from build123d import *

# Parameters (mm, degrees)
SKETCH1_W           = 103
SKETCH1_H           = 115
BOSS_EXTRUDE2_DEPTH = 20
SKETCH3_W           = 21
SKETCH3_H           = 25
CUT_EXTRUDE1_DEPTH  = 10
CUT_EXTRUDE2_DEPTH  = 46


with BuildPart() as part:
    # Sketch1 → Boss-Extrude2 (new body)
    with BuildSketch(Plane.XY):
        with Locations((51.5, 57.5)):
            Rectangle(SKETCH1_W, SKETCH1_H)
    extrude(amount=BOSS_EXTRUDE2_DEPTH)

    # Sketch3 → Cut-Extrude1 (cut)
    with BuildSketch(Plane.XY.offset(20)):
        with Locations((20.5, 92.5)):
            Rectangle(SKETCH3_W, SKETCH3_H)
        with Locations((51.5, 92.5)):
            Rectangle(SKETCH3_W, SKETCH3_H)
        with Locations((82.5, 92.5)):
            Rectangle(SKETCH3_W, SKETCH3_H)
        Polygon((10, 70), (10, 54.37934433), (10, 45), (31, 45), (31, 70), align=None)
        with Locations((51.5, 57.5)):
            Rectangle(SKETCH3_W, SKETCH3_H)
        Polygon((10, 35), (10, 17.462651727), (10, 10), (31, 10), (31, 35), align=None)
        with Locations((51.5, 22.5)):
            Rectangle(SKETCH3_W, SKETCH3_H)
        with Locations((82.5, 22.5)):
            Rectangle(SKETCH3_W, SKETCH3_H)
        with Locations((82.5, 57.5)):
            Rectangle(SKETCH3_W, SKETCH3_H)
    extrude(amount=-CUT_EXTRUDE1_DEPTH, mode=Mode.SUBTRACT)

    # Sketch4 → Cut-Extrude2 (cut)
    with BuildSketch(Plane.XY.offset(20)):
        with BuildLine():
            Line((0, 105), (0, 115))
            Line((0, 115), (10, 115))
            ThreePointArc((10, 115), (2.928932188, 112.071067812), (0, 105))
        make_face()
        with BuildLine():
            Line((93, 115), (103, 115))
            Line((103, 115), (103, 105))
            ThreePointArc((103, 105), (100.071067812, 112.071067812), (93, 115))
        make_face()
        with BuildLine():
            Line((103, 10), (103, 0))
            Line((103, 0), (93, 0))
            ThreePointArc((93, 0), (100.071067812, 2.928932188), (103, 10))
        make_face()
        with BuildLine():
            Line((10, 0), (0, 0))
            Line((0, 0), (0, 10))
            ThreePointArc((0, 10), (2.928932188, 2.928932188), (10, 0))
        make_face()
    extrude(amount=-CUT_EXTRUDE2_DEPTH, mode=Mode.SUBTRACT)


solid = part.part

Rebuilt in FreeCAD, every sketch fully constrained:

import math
import FreeCAD as App
import Part
import Sketcher

V = App.Vector
Q = App.Units.Quantity


def add_polygon(sketch, points):
    """Adds a closed chain of lines whose ends are joined by coincident constraints."""
    first, n = sketch.GeometryCount, len(points)
    for a, b in zip(points, points[1:] + points[:1]):
        sketch.addGeometry(Part.LineSegment(App.Vector(*a, 0), App.Vector(*b, 0)), False)
    for i in range(n):
        sketch.addConstraint(Sketcher.Constraint("Coincident", first + i, 2, first + (i + 1) % n, 1))

doc = App.newDocument("Part")
body = doc.addObject("PartDesign::Body", "Body")

# Sketch on XY plane
sketch1 = body.newObject("Sketcher::SketchObject", "Sketch")
sketch1.AttachmentSupport = (doc.getObject("XY_Plane"), [""])
sketch1.MapMode = "FlatFace"
add_polygon(sketch1, [(0, 115), (0, 0), (103, 0), (103, 115)])  # lines 0-3
sketch1.addConstraint([
    Sketcher.Constraint("Vertical", 0),
    Sketcher.Constraint("Horizontal", 1),
    Sketcher.Constraint("Vertical", 2),
    Sketcher.Constraint("Horizontal", 3),
    Sketcher.Constraint("Coincident", 0, 2, -1, 1),
    Sketcher.Constraint("DistanceX", 1, 1, 1, 2, Q("103 mm")),
    Sketcher.Constraint("DistanceY", 0, 2, 0, 1, Q("115 mm")),
])
pad1 = body.newObject("PartDesign::Pad", "Pad")
pad1.Profile = sketch1
pad1.Length = 20

# Sketch on XY plane
sketch2 = body.newObject("Sketcher::SketchObject", "Sketch001")
sketch2.AttachmentSupport = (doc.getObject("XY_Plane"), [""])
sketch2.MapMode = "FlatFace"
sketch2.AttachmentOffset = App.Placement(V(0, 0, 20), App.Rotation())
add_polygon(sketch2, [(10, 105), (10, 80), (31, 80), (31, 105)])  # lines 0-3
add_polygon(sketch2, [(41, 105), (41, 80), (62, 80), (62, 105)])  # lines 4-7
add_polygon(sketch2, [(72, 105), (72, 80), (93, 80), (93, 105)])  # lines 8-11
add_polygon(sketch2, [(10, 70), (10, 45), (31, 45), (31, 70)])  # lines 12-15
add_polygon(sketch2, [(41, 70), (41, 45), (62, 45), (62, 70)])  # lines 16-19
add_polygon(sketch2, [(10, 35), (10, 10), (31, 10), (31, 35)])  # lines 20-23
add_polygon(sketch2, [(41, 35), (41, 10), (62, 10), (62, 35)])  # lines 24-27
add_polygon(sketch2, [(72, 35), (72, 10), (93, 10), (93, 35)])  # lines 28-31
add_polygon(sketch2, [(72, 70), (72, 45), (93, 45), (93, 70)])  # lines 32-35
sketch2.addConstraint([
    Sketcher.Constraint("Vertical", 0),
    Sketcher.Constraint("Horizontal", 1),
    Sketcher.Constraint("Vertical", 2),
    Sketcher.Constraint("Horizontal", 3),
    Sketcher.Constraint("Vertical", 4),
    Sketcher.Constraint("Horizontal", 5),
    Sketcher.Constraint("Vertical", 6),
    Sketcher.Constraint("Horizontal", 7),
    Sketcher.Constraint("Vertical", 8),
    Sketcher.Constraint("Horizontal", 9),
    Sketcher.Constraint("Vertical", 10),
    Sketcher.Constraint("Horizontal", 11),
    Sketcher.Constraint("Vertical", 12),
    Sketcher.Constraint("Horizontal", 13),
    Sketcher.Constraint("Vertical", 14),
    Sketcher.Constraint("Horizontal", 15),
    Sketcher.Constraint("Vertical", 16),
    Sketcher.Constraint("Horizontal", 17),
    Sketcher.Constraint("Vertical", 18),
    Sketcher.Constraint("Horizontal", 19),
    Sketcher.Constraint("Vertical", 20),
    Sketcher.Constraint("Horizontal", 21),
    Sketcher.Constraint("Vertical", 22),
    Sketcher.Constraint("Horizontal", 23),
    Sketcher.Constraint("Vertical", 24),
    Sketcher.Constraint("Horizontal", 25),
    Sketcher.Constraint("Vertical", 26),
    Sketcher.Constraint("Horizontal", 27),
    Sketcher.Constraint("Vertical", 28),
    Sketcher.Constraint("Horizontal", 29),
    Sketcher.Constraint("Vertical", 30),
    Sketcher.Constraint("Horizontal", 31),
    Sketcher.Constraint("Vertical", 32),
    Sketcher.Constraint("Horizontal", 33),
    Sketcher.Constraint("Vertical", 34),
    Sketcher.Constraint("Horizontal", 35),
    Sketcher.Constraint("Horizontal", 1, 2, 4, 2),
    Sketcher.Constraint("Horizontal", 3, 2, 6, 2),
    Sketcher.Constraint("Horizontal", 5, 2, 8, 2),
    Sketcher.Constraint("Horizontal", 7, 2, 10, 2),
    Sketcher.Constraint("Horizontal", 13, 2, 16, 2),
    Sketcher.Constraint("Horizontal", 15, 2, 18, 2),
    Sketcher.Constraint("Horizontal", 21, 2, 24, 2),
    Sketcher.Constraint("Horizontal", 23, 2, 26, 2),
    Sketcher.Constraint("Horizontal", 25, 2, 28, 2),
    Sketcher.Constraint("Horizontal", 27, 2, 30, 2),
    Sketcher.Constraint("Horizontal", 17, 2, 32, 2),
    Sketcher.Constraint("Horizontal", 19, 2, 34, 2),
    Sketcher.Constraint("Vertical", 3, 2, 12, 2),
    Sketcher.Constraint("Vertical", 2, 2, 13, 2),
    Sketcher.Constraint("Vertical", 7, 2, 16, 2),
    Sketcher.Constraint("Vertical", 6, 2, 17, 2),
    Sketcher.Constraint("Vertical", 15, 2, 20, 2),
    Sketcher.Constraint("Vertical", 14, 2, 21, 2),
    Sketcher.Constraint("Vertical", 19, 2, 24, 2),
    Sketcher.Constraint("Vertical", 18, 2, 25, 2),
    Sketcher.Constraint("Vertical", 11, 2, 28, 2),
    Sketcher.Constraint("Vertical", 10, 2, 29, 2),
    Sketcher.Constraint("Vertical", 31, 2, 32, 2),
    Sketcher.Constraint("Vertical", 30, 2, 33, 2),
    Sketcher.Constraint("Equal", 3, 5),
    Sketcher.Constraint("Equal", 7, 9),
    Sketcher.Constraint("Equal", 10, 12),
    Sketcher.Constraint("Equal", 18, 20),
    Sketcher.Constraint("DistanceX", 1, 1, 1, 2, Q("21 mm")),
    Sketcher.Constraint("DistanceY", 0, 2, 0, 1, Q("25 mm")),
    Sketcher.Constraint("DistanceX", -1, 1, 0, 2, Q("10 mm")),
    Sketcher.Constraint("DistanceY", -1, 1, 0, 2, Q("80 mm")),
    Sketcher.Constraint("DistanceX", -1, 1, 4, 2, Q("41 mm")),
    Sketcher.Constraint("DistanceX", -1, 1, 8, 2, Q("72 mm")),
    Sketcher.Constraint("DistanceY", -1, 1, 12, 2, Q("45 mm")),
    Sketcher.Constraint("DistanceY", -1, 1, 20, 2, Q("10 mm")),
])
pocket1 = body.newObject("PartDesign::Pocket", "Pocket")
pocket1.Profile = sketch2
pocket1.Length = 10

# Sketch on XY plane
sketch3 = body.newObject("Sketcher::SketchObject", "Sketch002")
sketch3.AttachmentSupport = (doc.getObject("XY_Plane"), [""])
sketch3.MapMode = "FlatFace"
sketch3.AttachmentOffset = App.Placement(V(0, 0, 20), App.Rotation())
sketch3.addGeometry([
    Part.LineSegment(V(0, 115, 0), V(0, 105, 0)),  # 0
    Part.ArcOfCircle(Part.Circle(V(10, 105, 0), V(0, 0, 1), 10), math.radians(90), math.radians(180)),  # 1
    Part.LineSegment(V(10, 115, 0), V(0, 115, 0)),  # 2
    Part.LineSegment(V(103, 115, 0), V(93, 115, 0)),  # 3
    Part.ArcOfCircle(Part.Circle(V(93, 105, 0), V(0, 0, 1), 10), math.radians(0), math.radians(90)),  # 4
    Part.LineSegment(V(103, 105, 0), V(103, 115, 0)),  # 5
    Part.LineSegment(V(103, 0, 0), V(103, 10, 0)),  # 6
    Part.ArcOfCircle(Part.Circle(V(93, 10, 0), V(0, 0, 1), 10), math.radians(-90), math.radians(0)),  # 7
    Part.LineSegment(V(93, 0, 0), V(103, 0, 0)),  # 8
    Part.LineSegment(V(0, 0, 0), V(10, 0, 0)),  # 9
    Part.ArcOfCircle(Part.Circle(V(10, 10, 0), V(0, 0, 1), 10), math.radians(180), math.radians(270)),  # 10
    Part.LineSegment(V(0, 10, 0), V(0, 0, 0)),  # 11
], False)
sketch3.addConstraint([
    Sketcher.Constraint("Tangent", 0, 2, 1, 2),
    Sketcher.Constraint("Tangent", 1, 1, 2, 1),
    Sketcher.Constraint("Coincident", 2, 2, 0, 1),
    Sketcher.Constraint("Tangent", 3, 2, 4, 2),
    Sketcher.Constraint("Tangent", 4, 1, 5, 1),
    Sketcher.Constraint("Coincident", 5, 2, 3, 1),
    Sketcher.Constraint("Tangent", 6, 2, 7, 2),
    Sketcher.Constraint("Tangent", 7, 1, 8, 1),
    Sketcher.Constraint("Coincident", 8, 2, 6, 1),
    Sketcher.Constraint("Tangent", 9, 2, 10, 2),
    Sketcher.Constraint("Tangent", 10, 1, 11, 1),
    Sketcher.Constraint("Coincident", 11, 2, 9, 1),
    Sketcher.Constraint("Vertical", 0),
    Sketcher.Constraint("Horizontal", 2),
    Sketcher.Constraint("Horizontal", 3),
    Sketcher.Constraint("Vertical", 5),
    Sketcher.Constraint("Vertical", 6),
    Sketcher.Constraint("Horizontal", 8),
    Sketcher.Constraint("Horizontal", 9),
    Sketcher.Constraint("Vertical", 11),
    Sketcher.Constraint("Coincident", 11, 2, -1, 1),
    Sketcher.Constraint("Equal", 1, 4),
    Sketcher.Constraint("Equal", 4, 7),
    Sketcher.Constraint("Equal", 7, 10),
    Sketcher.Constraint("PointOnObject", 0, 2, -2),
    Sketcher.Constraint("PointOnObject", 7, 1, -1),
    Sketcher.Constraint("Horizontal", 1, 3, 4, 3),
    Sketcher.Constraint("Vertical", 4, 3, 7, 3),
    Sketcher.Constraint("Radius", 1, Q("10 mm")),
    Sketcher.Constraint("DistanceY", -1, 1, 1, 3, Q("105 mm")),
    Sketcher.Constraint("DistanceX", -1, 1, 4, 3, Q("93 mm")),
])
pocket2 = body.newObject("PartDesign::Pocket", "Pocket001")
pocket2.Profile = sketch3
pocket2.Length = 46

doc.recompute()
